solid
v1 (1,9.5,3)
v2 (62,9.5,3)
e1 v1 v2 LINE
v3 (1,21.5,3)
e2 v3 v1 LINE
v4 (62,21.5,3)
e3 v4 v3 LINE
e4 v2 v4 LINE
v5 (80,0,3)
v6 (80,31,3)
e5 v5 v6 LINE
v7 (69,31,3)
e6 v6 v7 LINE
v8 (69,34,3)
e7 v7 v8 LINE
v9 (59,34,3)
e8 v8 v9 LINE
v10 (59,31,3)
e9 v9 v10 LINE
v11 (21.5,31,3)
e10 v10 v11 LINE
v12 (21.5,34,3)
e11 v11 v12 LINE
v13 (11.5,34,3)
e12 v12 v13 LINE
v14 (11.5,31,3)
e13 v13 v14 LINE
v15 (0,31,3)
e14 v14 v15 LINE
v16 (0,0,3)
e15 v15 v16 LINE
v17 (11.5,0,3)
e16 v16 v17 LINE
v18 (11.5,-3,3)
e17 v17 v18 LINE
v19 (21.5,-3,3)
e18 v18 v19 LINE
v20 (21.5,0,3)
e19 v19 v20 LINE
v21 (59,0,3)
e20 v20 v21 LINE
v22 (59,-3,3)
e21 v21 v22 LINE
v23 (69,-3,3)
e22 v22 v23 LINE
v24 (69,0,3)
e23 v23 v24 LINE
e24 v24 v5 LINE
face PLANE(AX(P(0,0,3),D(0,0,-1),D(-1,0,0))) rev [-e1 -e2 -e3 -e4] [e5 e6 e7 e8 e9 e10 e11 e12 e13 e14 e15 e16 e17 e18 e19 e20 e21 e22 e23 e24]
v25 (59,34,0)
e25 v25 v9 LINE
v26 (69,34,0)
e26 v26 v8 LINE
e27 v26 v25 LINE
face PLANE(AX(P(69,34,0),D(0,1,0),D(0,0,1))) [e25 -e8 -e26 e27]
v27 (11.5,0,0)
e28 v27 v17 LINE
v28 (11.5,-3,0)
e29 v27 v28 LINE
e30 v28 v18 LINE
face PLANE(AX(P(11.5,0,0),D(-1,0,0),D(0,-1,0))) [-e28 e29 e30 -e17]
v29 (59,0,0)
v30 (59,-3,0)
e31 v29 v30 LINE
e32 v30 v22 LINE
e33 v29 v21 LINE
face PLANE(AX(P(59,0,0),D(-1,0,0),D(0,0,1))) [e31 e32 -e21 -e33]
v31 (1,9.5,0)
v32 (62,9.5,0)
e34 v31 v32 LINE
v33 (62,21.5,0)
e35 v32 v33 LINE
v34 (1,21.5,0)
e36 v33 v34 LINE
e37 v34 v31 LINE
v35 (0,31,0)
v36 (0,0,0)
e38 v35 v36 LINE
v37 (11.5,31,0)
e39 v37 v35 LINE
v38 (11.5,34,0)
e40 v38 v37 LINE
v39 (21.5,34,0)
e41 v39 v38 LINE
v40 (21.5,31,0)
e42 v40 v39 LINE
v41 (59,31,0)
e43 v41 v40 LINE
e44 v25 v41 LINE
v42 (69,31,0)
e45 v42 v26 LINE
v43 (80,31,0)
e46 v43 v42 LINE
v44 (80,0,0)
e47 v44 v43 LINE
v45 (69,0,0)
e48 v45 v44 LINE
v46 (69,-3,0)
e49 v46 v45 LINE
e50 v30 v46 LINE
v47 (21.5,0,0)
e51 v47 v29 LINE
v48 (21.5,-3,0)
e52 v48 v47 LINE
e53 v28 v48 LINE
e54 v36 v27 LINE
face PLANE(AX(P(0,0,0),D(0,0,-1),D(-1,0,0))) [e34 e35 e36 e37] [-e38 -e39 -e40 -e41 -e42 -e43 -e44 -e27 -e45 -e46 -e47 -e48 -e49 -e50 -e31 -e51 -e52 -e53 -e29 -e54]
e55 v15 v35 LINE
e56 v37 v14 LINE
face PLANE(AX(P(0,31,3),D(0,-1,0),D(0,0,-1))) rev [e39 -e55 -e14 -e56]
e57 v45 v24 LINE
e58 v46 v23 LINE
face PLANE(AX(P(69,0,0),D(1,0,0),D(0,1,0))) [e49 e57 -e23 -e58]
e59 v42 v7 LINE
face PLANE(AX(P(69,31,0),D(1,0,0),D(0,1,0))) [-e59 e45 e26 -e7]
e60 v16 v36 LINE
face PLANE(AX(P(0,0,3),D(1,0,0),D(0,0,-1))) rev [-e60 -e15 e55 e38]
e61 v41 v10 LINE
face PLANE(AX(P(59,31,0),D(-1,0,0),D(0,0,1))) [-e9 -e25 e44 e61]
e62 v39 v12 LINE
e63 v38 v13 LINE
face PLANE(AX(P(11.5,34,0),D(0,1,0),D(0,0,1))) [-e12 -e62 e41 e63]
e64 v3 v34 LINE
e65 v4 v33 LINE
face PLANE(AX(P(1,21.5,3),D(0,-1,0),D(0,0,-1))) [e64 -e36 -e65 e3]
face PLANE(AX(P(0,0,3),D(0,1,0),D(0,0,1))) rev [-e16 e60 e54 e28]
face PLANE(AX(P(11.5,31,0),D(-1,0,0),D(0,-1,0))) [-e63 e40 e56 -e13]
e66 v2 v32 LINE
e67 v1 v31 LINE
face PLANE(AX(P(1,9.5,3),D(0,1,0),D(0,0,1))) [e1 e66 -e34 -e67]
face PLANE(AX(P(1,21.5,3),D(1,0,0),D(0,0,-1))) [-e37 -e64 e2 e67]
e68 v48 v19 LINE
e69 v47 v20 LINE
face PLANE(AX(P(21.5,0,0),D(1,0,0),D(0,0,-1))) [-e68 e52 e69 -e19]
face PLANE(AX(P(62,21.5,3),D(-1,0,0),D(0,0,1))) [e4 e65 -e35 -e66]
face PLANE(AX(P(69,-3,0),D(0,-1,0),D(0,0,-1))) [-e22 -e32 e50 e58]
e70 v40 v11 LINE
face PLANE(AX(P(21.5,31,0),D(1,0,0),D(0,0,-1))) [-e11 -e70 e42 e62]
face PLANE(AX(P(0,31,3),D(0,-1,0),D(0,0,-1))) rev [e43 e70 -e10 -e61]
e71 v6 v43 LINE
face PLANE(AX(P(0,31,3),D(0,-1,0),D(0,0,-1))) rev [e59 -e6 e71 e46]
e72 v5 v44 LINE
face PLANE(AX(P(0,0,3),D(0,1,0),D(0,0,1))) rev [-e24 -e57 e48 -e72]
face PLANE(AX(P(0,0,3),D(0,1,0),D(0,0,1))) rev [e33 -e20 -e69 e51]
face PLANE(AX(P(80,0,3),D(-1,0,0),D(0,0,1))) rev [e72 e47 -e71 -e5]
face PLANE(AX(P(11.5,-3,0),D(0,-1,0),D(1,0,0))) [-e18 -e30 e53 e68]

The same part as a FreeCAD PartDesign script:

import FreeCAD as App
import Part
import Sketcher

V = App.Vector

doc = App.newDocument("Part")
body = doc.addObject("PartDesign::Body", "Body")

sketch1 = body.newObject("Sketcher::SketchObject", "Sketch")
sketch1.AttachmentSupport = (doc.getObject("XY_Plane"), [""])
sketch1.MapMode = "FlatFace"
sketch1.addGeometry([
    Part.LineSegment(V(0, 31, 0), V(0, 0, 0)),
    Part.LineSegment(V(0, 0, 0), V(80, 0, 0)),
    Part.LineSegment(V(80, 0, 0), V(80, 31, 0)),
    Part.LineSegment(V(80, 31, 0), V(0, 31, 0)),
    Part.LineSegment(V(62, 9.5, 0), V(1, 9.5, 0)),
    Part.LineSegment(V(1, 9.5, 0), V(1, 21.5, 0)),
    Part.LineSegment(V(1, 21.5, 0), V(62, 21.5, 0)),
    Part.LineSegment(V(62, 21.5, 0), V(62, 9.5, 0)),
], False)
sketch1.addConstraint([
    Sketcher.Constraint("Coincident", 0, 2, 1, 1),
    Sketcher.Constraint("Coincident", 1, 2, 2, 1),
    Sketcher.Constraint("Coincident", 2, 2, 3, 1),
    Sketcher.Constraint("Coincident", 3, 2, 0, 1),
    Sketcher.Constraint("Coincident", 4, 2, 5, 1),
    Sketcher.Constraint("Coincident", 5, 2, 6, 1),
    Sketcher.Constraint("Coincident", 6, 2, 7, 1),
    Sketcher.Constraint("Coincident", 7, 2, 4, 1),
    Sketcher.Constraint("Vertical", 0),
    Sketcher.Constraint("Horizontal", 1),
    Sketcher.Constraint("Vertical", 2),
    Sketcher.Constraint("Horizontal", 3),
    Sketcher.Constraint("Horizontal", 4),
    Sketcher.Constraint("Vertical", 5),
    Sketcher.Constraint("Horizontal", 6),
    Sketcher.Constraint("Vertical", 7),
    Sketcher.Constraint("Coincident", 0, 2, -1, 1),
    Sketcher.Constraint("DistanceX", 1, 1, 1, 2, 80.0),
    Sketcher.Constraint("DistanceX", 4, 2, 4, 1, 61.0),
    Sketcher.Constraint("DistanceY", 0, 2, 0, 1, 31.0),
    Sketcher.Constraint("DistanceY", 5, 1, 5, 2, 12.0),
    Sketcher.Constraint("DistanceX", -1, 1, 4, 2, 1.0),
    Sketcher.Constraint("DistanceY", -1, 1, 4, 2, 9.5),
])
pad1 = body.newObject("PartDesign::Pad", "Pad")
pad1.Profile = sketch1
pad1.Length = 3

sketch2 = body.newObject("Sketcher::SketchObject", "Sketch001")
sketch2.AttachmentSupport = (doc.getObject("XY_Plane"), [""])
sketch2.MapMode = "FlatFace"
sketch2.AttachmentOffset = App.Placement(V(0, 0, 3), App.Rotation())
sketch2.addGeometry([
    Part.LineSegment(V(11.5, 34, 0), V(11.5, 31, 0)),
    Part.LineSegment(V(11.5, 31, 0), V(21.5, 31, 0)),
    Part.LineSegment(V(21.5, 31, 0), V(21.5, 34, 0)),
    Part.LineSegment(V(21.5, 34, 0), V(11.5, 34, 0)),
    Part.LineSegment(V(59, 34, 0), V(59, 31, 0)),
    Part.LineSegment(V(59, 31, 0), V(69, 31, 0)),
    Part.LineSegment(V(69, 31, 0), V(69, 34, 0)),
    Part.LineSegment(V(69, 34, 0), V(59, 34, 0)),
    Part.LineSegment(V(59, 0, 0), V(59, -3, 0)),
    Part.LineSegment(V(59, -3, 0), V(69, -3, 0)),
    Part.LineSegment(V(69, -3, 0), V(69, 0, 0)),
    Part.LineSegment(V(69, 0, 0), V(59, 0, 0)),
    Part.LineSegment(V(11.5, 0, 0), V(11.5, -3, 0)),
    Part.LineSegment(V(11.5, -3, 0), V(21.5, -3, 0)),
    Part.LineSegment(V(21.5, -3, 0), V(21.5, 0, 0)),
    Part.LineSegment(V(21.5, 0, 0), V(11.5, 0, 0)),
], False)
sketch2.addConstraint([
    Sketcher.Constraint("Coincident", 0, 2, 1, 1),
    Sketcher.Constraint("Coincident", 1, 2, 2, 1),
    Sketcher.Constraint("Coincident", 2, 2, 3, 1),
    Sketcher.Constraint("Coincident", 3, 2, 0, 1),
    Sketcher.Constraint("Coincident", 4, 2, 5, 1),
    Sketcher.Constraint("Coincident", 5, 2, 6, 1),
    Sketcher.Constraint("Coincident", 6, 2, 7, 1),
    Sketcher.Constraint("Coincident", 7, 2, 4, 1),
    Sketcher.Constraint("Coincident", 8, 2, 9, 1),
    Sketcher.Constraint("Coincident", 9, 2, 10, 1),
    Sketcher.Constraint("Coincident", 10, 2, 11, 1),
    Sketcher.Constraint("Coincident", 11, 2, 8, 1),
    Sketcher.Constraint("Coincident", 12, 2, 13, 1),
    Sketcher.Constraint("Coincident", 13, 2, 14, 1),
    Sketcher.Constraint("Coincident", 14, 2, 15, 1),
    Sketcher.Constraint("Coincident", 15, 2, 12, 1),
    Sketcher.Constraint("Vertical", 0),
    Sketcher.Constraint("Horizontal", 1),
    Sketcher.Constraint("Vertical", 2),
    Sketcher.Constraint("Horizontal", 3),
    Sketcher.Constraint("Vertical", 4),
    Sketcher.Constraint("Horizontal", 5),
    Sketcher.Constraint("Vertical", 6),
    Sketcher.Constraint("Horizontal", 7),
    Sketcher.Constraint("Vertical", 8),
    Sketcher.Constraint("Horizontal", 9),
    Sketcher.Constraint("Vertical", 10),
    Sketcher.Constraint("Horizontal", 11),
    Sketcher.Constraint("Vertical", 12),
    Sketcher.Constraint("Horizontal", 13),
    Sketcher.Constraint("Vertical", 14),
    Sketcher.Constraint("Horizontal", 15),
    Sketcher.Constraint("PointOnObject", 10, 2, -1),
    Sketcher.Constraint("PointOnObject", 14, 2, -1),
    Sketcher.Constraint("Horizontal", 1, 2, 4, 2),
    Sketcher.Constraint("Horizontal", 3, 2, 6, 2),
    Sketcher.Constraint("Horizontal", 9, 2, 12, 2),
    Sketcher.Constraint("Vertical", 7, 2, 8, 2),
    Sketcher.Constraint("Vertical", 6, 2, 9, 2),
    Sketcher.Constraint("Vertical", 3, 2, 12, 2),
    Sketcher.Constraint("Vertical", 2, 2, 13, 2),
    Sketcher.Constraint("Equal", 3, 5),
    Sketcher.Constraint("Equal", 6, 8),
    Sketcher.Constraint("DistanceX", 1, 1, 1, 2, 10.0),
    Sketcher.Constraint("DistanceY", 0, 2, 0, 1, 3.0),
    Sketcher.Constraint("DistanceY", -1, 1, 0, 2, 31.0),
    Sketcher.Constraint("DistanceX", -1, 1, 4, 2, 59.0),
    Sketcher.Constraint("DistanceX", -1, 1, 0, 2, 11.5),
])
pad2 = body.newObject("PartDesign::Pad", "Pad001")
pad2.Profile = sketch2
pad2.Length = 3
pad2.Reversed = True

doc.recompute()
